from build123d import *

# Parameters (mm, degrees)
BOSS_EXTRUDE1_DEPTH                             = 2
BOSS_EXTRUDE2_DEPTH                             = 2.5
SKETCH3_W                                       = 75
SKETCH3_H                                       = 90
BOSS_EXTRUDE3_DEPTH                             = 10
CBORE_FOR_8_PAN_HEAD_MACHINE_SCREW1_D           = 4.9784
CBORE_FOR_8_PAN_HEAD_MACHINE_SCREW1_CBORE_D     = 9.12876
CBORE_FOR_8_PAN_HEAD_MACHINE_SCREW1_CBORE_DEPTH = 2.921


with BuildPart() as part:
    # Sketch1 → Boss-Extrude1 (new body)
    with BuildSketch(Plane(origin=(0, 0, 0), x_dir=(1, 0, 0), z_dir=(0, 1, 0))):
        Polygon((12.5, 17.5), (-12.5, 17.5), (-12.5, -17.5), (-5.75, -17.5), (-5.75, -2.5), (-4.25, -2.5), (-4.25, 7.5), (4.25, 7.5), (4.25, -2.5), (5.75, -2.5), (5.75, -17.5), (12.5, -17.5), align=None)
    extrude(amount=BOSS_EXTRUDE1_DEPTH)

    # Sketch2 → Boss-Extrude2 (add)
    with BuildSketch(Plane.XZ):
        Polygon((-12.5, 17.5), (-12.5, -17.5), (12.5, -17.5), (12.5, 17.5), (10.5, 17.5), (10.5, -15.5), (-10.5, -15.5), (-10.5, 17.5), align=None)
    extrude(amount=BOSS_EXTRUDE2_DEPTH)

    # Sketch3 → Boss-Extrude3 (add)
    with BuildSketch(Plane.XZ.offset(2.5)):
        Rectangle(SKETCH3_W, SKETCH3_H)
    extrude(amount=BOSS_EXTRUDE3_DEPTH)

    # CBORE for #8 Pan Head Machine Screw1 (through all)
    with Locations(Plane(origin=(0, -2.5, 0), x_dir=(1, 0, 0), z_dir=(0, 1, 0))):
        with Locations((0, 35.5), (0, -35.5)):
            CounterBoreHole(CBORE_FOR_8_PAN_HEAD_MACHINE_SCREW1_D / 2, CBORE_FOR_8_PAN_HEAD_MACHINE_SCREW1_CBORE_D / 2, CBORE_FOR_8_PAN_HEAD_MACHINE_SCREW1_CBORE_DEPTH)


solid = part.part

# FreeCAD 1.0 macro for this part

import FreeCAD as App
import Part
import Sketcher

V = App.Vector
Q = App.Units.Quantity

doc = App.newDocument("Part")
body = doc.addObject("PartDesign::Body", "Body")

sketch1 = doc.addObject("Sketcher::SketchObject", "Sketch")
body.addObject(sketch1)
sketch1.AttachmentSupport = (doc.XZ_Plane, [""])
sketch1.MapMode = "FlatFace"
sketch1.addGeometry([
    Part.LineSegment(V(12.5, -17.5, 0), V(-12.5, -17.5, 0)),
    Part.LineSegment(V(-12.5, -17.5, 0), V(-12.5, 17.5, 0)),
    Part.LineSegment(V(-12.5, 17.5, 0), V(-5.75, 17.5, 0)),
    Part.LineSegment(V(-5.75, 17.5, 0), V(-5.75, 2.5, 0)),
    Part.LineSegment(V(-5.75, 2.5, 0), V(-4.25, 2.5, 0)),
    Part.LineSegment(V(-4.25, 2.5, 0), V(-4.25, -7.5, 0)),
    Part.LineSegment(V(-4.25, -7.5, 0), V(4.25, -7.5, 0)),
    Part.LineSegment(V(4.25, -7.5, 0), V(4.25, 2.5, 0)),
    Part.LineSegment(V(4.25, 2.5, 0), V(5.75, 2.5, 0)),
    Part.LineSegment(V(5.75, 2.5, 0), V(5.75, 17.5, 0)),
    Part.LineSegment(V(5.75, 17.5, 0), V(12.5, 17.5, 0)),
    Part.LineSegment(V(12.5, 17.5, 0), V(12.5, -17.5, 0)),
], False)
sketch1.addConstraint([
    Sketcher.Constraint("Coincident", 0, 2, 1, 1),
    Sketcher.Constraint("Coincident", 1, 2, 2, 1),
    Sketcher.Constraint("Coincident", 2, 2, 3, 1),
    Sketcher.Constraint("Coincident", 3, 2, 4, 1),
    Sketcher.Constraint("Coincident", 4, 2, 5, 1),
    Sketcher.Constraint("Coincident", 5, 2, 6, 1),
    Sketcher.Constraint("Coincident", 6, 2, 7, 1),
    Sketcher.Constraint("Coincident", 7, 2, 8, 1),
    Sketcher.Constraint("Coincident", 8, 2, 9, 1),
    Sketcher.Constraint("Coincident", 9, 2, 10, 1),
    Sketcher.Constraint("Coincident", 10, 2, 11, 1),
    Sketcher.Constraint("Coincident", 11, 2, 0, 1),
    Sketcher.Constraint("Horizontal", 0),
    Sketcher.Constraint("Vertical", 1),
    Sketcher.Constraint("Horizontal", 2),
    Sketcher.Constraint("Vertical", 3),
    Sketcher.Constraint("Horizontal", 4),
    Sketcher.Constraint("Vertical", 5),
    Sketcher.Constraint("Horizontal", 6),
    Sketcher.Constraint("Vertical", 7),
    Sketcher.Constraint("Horizontal", 8),
    Sketcher.Constraint("Vertical", 9),
    Sketcher.Constraint("Horizontal", 10),
    Sketcher.Constraint("Vertical", 11),
    Sketcher.Constraint("Symmetric", 0, 2, 10, 2, -1, 1),
    Sketcher.Constraint("Symmetric", 4, 2, 7, 2, -2),
    Sketcher.Constraint("Symmetric", 2, 2, 9, 2, -2),
    Sketcher.Constraint("DistanceX", 0, 2, 0, 1, Q("25 mm")),
    Sketcher.Constraint("DistanceY", 1, 1, 1, 2, Q("35 mm")),
    Sketcher.Constraint("DistanceY", 3, 2, 3, 1, Q("15 mm")),
    Sketcher.Constraint("DistanceY", 5, 2, 5, 1, Q("10 mm")),
    Sketcher.Constraint("DistanceX", 4, 1, 4, 2, Q("1.5 mm")),
    Sketcher.Constraint("DistanceX", 6, 1, 6, 2, Q("8.5 mm")),
])
pad1 = doc.addObject("PartDesign::Pad", "Pad")
body.addObject(pad1)
pad1.Profile = sketch1
pad1.Length = 2
pad1.Reversed = True

sketch2 = doc.addObject("Sketcher::SketchObject", "Sketch001")
body.addObject(sketch2)
sketch2.AttachmentSupport = (doc.XZ_Plane, [""])
sketch2.MapMode = "FlatFace"
sketch2.addGeometry([
    Part.LineSegment(V(-12.5, 17.5, 0), V(-12.5, -17.5, 0)),
    Part.LineSegment(V(-12.5, -17.5, 0), V(12.5, -17.5, 0)),
    Part.LineSegment(V(12.5, -17.5, 0), V(12.5, 17.5, 0)),
    Part.LineSegment(V(12.5, 17.5, 0), V(10.5, 17.5, 0)),
    Part.LineSegment(V(10.5, 17.5, 0), V(10.5, -15.5, 0)),
    Part.LineSegment(V(10.5, -15.5, 0), V(-10.5, -15.5, 0)),
    Part.LineSegment(V(-10.5, -15.5, 0), V(-10.5, 17.5, 0)),
    Part.LineSegment(V(-10.5, 17.5, 0), V(-12.5, 17.5, 0)),
], False)
sketch2.addConstraint([
    Sketcher.Constraint("Coincident", 0, 2, 1, 1),
    Sketcher.Constraint("Coincident", 1, 2, 2, 1),
    Sketcher.Constraint("Coincident", 2, 2, 3, 1),
    Sketcher.Constraint("Coincident", 3, 2, 4, 1),
    Sketcher.Constraint("Coincident", 4, 2, 5, 1),
    Sketcher.Constraint("Coincident", 5, 2, 6, 1),
    Sketcher.Constraint("Coincident", 6, 2, 7, 1),
    Sketcher.Constraint("Coincident", 7, 2, 0, 1),
    Sketcher.Constraint("Vertical", 0),
    Sketcher.Constraint("Horizontal", 1),
    Sketcher.Constraint("Vertical", 2),
    Sketcher.Constraint("Horizontal", 3),
    Sketcher.Constraint("Vertical", 4),
    Sketcher.Constraint("Horizontal", 5),
    Sketcher.Constraint("Vertical", 6),
    Sketcher.Constraint("Horizontal", 7),
    Sketcher.Constraint("Symmetric", 0, 2, 2, 2, -1, 1),
    Sketcher.Constraint("Symmetric", 3, 2, 6, 2, -2),
    Sketcher.Constraint("DistanceX", 1, 1, 1, 2, Q("25 mm")),
    Sketcher.Constraint("DistanceX", 3, 2, 3, 1, Q("2 mm")),
    Sketcher.Constraint("DistanceY", 0, 2, 0, 1, Q("35 mm")),
    Sketcher.Constraint("DistanceY", 4, 2, 4, 1, Q("33 mm")),
])
pad2 = doc.addObject("PartDesign::Pad", "Pad001")
body.addObject(pad2)
pad2.Profile = sketch2
pad2.Length = 2.5

sketch3 = doc.addObject("Sketcher::SketchObject", "Sketch002")
body.addObject(sketch3)
sketch3.AttachmentSupport = (doc.XZ_Plane, [""])
sketch3.MapMode = "FlatFace"
sketch3.AttachmentOffset = App.Placement(V(0, 0, 2.5), App.Rotation())
sketch3.addGeometry([
    Part.LineSegment(V(-37.5, 45, 0), V(-37.5, -45, 0)),
    Part.LineSegment(V(-37.5, -45, 0), V(37.5, -45, 0)),
    Part.LineSegment(V(37.5, -45, 0), V(37.5, 45, 0)),
    Part.LineSegment(V(37.5, 45, 0), V(-37.5, 45, 0)),
], False)
sketch3.addConstraint([
    Sketcher.Constraint("Coincident", 0, 2, 1, 1),
    Sketcher.Constraint("Coincident", 1, 2, 2, 1),
    Sketcher.Constraint("Coincident", 2, 2, 3, 1),
    Sketcher.Constraint("Coincident", 3, 2, 0, 1),
    Sketcher.Constraint("Vertical", 0),
    Sketcher.Constraint("Horizontal", 1),
    Sketcher.Constraint("Vertical", 2),
    Sketcher.Constraint("Horizontal", 3),
    Sketcher.Constraint("Symmetric", 0, 2, 2, 2, -1, 1),
    Sketcher.Constraint("DistanceX", 1, 1, 1, 2, Q("75 mm")),
    Sketcher.Constraint("DistanceY", 0, 2, 0, 1, Q("90 mm")),
])
pad3 = doc.addObject("PartDesign::Pad", "Pad002")
body.addObject(pad3)
pad3.Profile = sketch3
pad3.Length = 10

sketch4 = doc.addObject("Sketcher::SketchObject", "Sketch003")
body.addObject(sketch4)
sketch4.AttachmentSupport = (doc.XZ_Plane, [""])
sketch4.MapMode = "FlatFace"
sketch4.AttachmentOffset = App.Placement(V(0, 0, 2.5), App.Rotation())
sketch4.addGeometry([
    Part.Circle(V(0, -35.5, 0), V(0, 0, 1), 2.4892),
    Part.Circle(V(0, 35.5, 0), V(0, 0, 1), 2.4892),
], False)
sketch4.addConstraint([
    Sketcher.Constraint("Equal", 0, 1),
    Sketcher.Constraint("Symmetric", 0, 3, 1, 3, -1, 1),
    Sketcher.Constraint("PointOnObject", 0, 3, -2),
    Sketcher.Constraint("DistanceY", 0, 3, 1, 3, Q("71 mm")),
    Sketcher.Constraint("Diameter", 0, Q("4.9784 mm")),
])
doc.recompute()
hole = doc.addObject("PartDesign::Hole", "Hole")
body.addObject(hole)
hole.Profile = sketch4
hole.ThreadType = "None"
hole.Diameter = 4.9784
hole.DepthType = "ThroughAll"
hole.HoleCutType = "Counterbore"
hole.HoleCutDiameter = 9.12876
hole.HoleCutDepth = 2.921
hole.Reversed = True

doc.recompute()
